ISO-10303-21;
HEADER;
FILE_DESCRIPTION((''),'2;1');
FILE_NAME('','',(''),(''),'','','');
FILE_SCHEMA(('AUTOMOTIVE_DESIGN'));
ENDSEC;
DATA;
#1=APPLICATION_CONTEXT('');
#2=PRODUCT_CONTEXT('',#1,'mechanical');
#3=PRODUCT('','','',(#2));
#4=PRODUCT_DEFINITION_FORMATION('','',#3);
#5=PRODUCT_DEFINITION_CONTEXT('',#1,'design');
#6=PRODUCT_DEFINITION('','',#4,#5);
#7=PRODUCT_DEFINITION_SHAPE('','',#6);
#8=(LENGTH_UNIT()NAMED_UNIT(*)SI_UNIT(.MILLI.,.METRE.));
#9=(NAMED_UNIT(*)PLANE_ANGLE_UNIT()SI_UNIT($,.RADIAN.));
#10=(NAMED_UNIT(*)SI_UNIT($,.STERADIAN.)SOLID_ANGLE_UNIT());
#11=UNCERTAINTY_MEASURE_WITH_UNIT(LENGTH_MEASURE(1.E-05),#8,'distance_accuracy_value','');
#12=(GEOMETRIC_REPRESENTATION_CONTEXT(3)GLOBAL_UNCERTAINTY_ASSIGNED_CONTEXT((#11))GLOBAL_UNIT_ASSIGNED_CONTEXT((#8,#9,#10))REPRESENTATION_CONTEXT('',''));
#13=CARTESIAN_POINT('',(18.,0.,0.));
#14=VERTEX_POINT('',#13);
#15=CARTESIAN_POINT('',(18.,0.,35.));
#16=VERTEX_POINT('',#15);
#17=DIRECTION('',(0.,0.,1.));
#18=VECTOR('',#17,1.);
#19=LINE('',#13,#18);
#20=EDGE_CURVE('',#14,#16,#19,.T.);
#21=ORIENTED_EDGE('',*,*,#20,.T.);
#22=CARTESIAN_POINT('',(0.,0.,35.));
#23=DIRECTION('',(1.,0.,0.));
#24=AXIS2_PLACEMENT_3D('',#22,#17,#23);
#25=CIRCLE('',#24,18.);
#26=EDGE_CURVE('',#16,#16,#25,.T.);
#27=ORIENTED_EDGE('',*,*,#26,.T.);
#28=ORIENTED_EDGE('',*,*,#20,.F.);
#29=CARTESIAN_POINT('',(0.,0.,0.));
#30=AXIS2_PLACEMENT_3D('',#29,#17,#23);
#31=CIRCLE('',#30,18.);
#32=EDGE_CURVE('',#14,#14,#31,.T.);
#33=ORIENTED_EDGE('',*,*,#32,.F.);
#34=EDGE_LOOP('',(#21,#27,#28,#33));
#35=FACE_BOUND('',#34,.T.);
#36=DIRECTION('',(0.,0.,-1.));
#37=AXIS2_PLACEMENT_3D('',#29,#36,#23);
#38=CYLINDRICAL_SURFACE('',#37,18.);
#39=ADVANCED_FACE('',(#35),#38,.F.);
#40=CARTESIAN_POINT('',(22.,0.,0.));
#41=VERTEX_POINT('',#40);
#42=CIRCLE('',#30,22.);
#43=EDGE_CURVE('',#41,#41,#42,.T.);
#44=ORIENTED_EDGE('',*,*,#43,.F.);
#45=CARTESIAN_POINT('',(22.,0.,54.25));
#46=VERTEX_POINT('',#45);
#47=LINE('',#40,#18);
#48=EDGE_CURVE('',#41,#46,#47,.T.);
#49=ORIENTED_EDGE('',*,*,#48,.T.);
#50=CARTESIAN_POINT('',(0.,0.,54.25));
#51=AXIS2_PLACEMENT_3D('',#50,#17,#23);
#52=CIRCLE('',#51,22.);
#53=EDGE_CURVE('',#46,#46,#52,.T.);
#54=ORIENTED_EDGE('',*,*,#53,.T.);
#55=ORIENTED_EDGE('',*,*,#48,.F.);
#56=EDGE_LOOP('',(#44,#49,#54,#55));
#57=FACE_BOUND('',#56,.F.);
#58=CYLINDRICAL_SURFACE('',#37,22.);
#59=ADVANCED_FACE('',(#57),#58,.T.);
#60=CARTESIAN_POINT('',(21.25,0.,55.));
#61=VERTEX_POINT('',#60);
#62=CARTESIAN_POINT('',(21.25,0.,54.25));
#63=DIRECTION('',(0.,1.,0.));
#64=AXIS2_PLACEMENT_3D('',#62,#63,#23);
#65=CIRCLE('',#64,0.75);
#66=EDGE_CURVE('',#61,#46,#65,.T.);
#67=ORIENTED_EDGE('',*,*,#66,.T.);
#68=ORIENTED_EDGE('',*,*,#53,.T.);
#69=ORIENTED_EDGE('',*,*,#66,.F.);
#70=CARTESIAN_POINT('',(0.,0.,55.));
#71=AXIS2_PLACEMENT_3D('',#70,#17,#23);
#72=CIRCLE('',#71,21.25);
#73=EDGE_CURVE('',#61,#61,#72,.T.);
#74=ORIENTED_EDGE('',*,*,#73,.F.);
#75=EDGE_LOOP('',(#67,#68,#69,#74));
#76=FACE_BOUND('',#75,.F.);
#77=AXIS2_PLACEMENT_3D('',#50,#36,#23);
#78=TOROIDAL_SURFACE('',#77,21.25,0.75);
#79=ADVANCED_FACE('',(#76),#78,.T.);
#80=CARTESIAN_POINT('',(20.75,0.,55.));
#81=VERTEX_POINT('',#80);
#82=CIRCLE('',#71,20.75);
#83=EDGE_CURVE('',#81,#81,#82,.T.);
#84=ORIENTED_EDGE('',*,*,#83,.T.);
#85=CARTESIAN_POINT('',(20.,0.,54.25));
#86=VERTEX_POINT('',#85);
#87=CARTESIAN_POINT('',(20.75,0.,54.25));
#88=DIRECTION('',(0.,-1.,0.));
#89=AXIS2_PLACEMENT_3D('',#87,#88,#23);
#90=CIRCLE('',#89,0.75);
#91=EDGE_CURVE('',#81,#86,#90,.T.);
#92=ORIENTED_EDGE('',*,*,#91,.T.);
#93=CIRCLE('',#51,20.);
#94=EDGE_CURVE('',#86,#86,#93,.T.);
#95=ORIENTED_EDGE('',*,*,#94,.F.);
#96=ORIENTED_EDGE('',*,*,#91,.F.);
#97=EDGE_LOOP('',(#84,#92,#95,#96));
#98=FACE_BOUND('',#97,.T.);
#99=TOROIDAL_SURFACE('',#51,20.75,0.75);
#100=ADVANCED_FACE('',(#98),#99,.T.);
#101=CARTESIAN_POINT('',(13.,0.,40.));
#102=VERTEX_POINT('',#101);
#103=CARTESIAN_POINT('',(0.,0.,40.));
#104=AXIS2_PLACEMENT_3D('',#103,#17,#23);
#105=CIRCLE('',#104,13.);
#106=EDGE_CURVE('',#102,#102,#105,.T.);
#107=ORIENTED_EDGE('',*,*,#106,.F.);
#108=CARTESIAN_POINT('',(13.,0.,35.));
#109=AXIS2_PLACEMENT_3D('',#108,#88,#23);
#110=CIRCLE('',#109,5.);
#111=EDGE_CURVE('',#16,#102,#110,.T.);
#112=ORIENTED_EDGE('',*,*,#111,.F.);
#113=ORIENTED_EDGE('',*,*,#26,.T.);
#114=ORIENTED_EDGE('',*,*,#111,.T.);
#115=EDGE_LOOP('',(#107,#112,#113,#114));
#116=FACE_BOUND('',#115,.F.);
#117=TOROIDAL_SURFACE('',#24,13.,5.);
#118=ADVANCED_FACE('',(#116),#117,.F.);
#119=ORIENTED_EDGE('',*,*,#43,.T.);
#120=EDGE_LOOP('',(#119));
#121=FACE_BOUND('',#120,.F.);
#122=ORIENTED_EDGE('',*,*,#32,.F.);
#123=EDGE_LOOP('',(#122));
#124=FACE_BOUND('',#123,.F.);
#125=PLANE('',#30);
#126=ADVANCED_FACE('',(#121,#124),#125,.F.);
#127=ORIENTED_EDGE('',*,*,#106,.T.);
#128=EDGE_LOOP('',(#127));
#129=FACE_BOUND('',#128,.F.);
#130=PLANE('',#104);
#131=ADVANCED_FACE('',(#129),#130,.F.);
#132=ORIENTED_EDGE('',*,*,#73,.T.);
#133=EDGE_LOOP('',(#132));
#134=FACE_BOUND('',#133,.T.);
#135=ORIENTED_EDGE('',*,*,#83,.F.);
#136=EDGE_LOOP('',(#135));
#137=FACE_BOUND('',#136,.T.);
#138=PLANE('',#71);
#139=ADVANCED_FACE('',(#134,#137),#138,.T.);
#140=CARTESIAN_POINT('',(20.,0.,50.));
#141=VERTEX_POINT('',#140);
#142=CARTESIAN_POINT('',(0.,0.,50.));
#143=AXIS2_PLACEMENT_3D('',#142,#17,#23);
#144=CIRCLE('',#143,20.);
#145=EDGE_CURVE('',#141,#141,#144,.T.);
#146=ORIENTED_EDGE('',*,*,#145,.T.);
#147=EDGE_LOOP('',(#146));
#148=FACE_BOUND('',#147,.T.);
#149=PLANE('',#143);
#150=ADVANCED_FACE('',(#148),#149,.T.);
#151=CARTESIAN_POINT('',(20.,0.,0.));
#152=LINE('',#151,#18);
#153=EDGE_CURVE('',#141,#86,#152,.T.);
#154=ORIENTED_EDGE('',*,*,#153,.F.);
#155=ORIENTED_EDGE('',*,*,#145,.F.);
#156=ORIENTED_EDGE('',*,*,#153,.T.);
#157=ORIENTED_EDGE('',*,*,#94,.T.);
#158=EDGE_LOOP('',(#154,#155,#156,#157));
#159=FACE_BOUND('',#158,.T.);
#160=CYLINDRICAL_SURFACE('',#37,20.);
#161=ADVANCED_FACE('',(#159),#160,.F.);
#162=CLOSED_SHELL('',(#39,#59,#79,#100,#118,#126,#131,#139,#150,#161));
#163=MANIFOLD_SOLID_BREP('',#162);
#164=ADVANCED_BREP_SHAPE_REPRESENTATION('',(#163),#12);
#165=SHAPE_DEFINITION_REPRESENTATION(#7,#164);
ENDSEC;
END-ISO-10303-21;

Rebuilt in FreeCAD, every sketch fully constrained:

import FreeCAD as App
import Part
import Sketcher


def edges_at(feature, points):
    """Names of the edges that pass closest to the given points."""
    edges = feature.Shape.Edges
    near = lambda p: min(range(len(edges)), key=lambda i: edges[i].distToShape(Part.Vertex(*p))[0])
    return sorted({f"Edge{near(p) + 1}" for p in points})

doc = App.newDocument("Part")
body = doc.addObject("PartDesign::Body", "Body")

# Sketch on XY plane
sketch1 = body.newObject("Sketcher::SketchObject", "Sketch")
sketch1.AttachmentSupport = (doc.getObject("XY_Plane"), [""])
sketch1.MapMode = "FlatFace"
sketch1.addGeometry(Part.Circle(App.Vector(0, 0, 0), App.Vector(0, 0, 1), 20), False)
sketch1.addConstraint([
    Sketcher.Constraint("Coincident", 0, 3, -1, 1),
    Sketcher.Constraint("Diameter", 0, 40.0),
])
pad1 = body.newObject("PartDesign::Pad", "Pad")
pad1.Profile = sketch1
pad1.Length = 50

# Sketch on XY plane
sketch2 = body.newObject("Sketcher::SketchObject", "Sketch001")
sketch2.AttachmentSupport = (doc.getObject("XY_Plane"), [""])
sketch2.MapMode = "FlatFace"
sketch2.addGeometry([
    Part.Circle(App.Vector(0, 0, 0), App.Vector(0, 0, 1), 22),
    Part.Circle(App.Vector(0, 0, 0), App.Vector(0, 0, 1), 20),
], False)
sketch2.addConstraint([
    Sketcher.Constraint("Coincident", 0, 3, -1, 1),
    Sketcher.Constraint("Coincident", 1, 3, -1, 1),
    Sketcher.Constraint("Diameter", 0, 44.0),
    Sketcher.Constraint("Diameter", 1, 40.0),
])
pad2 = body.newObject("PartDesign::Pad", "Pad001")
pad2.Profile = sketch2
pad2.Length = 55

# Sketch on XY plane
sketch3 = body.newObject("Sketcher::SketchObject", "Sketch002")
sketch3.AttachmentSupport = (doc.getObject("XY_Plane"), [""])
sketch3.MapMode = "FlatFace"
sketch3.addGeometry(Part.Circle(App.Vector(0, 0, 0), App.Vector(0, 0, 1), 18), False)
sketch3.addConstraint([
    Sketcher.Constraint("Coincident", 0, 3, -1, 1),
    Sketcher.Constraint("Diameter", 0, 36.0),
])
pocket1 = body.newObject("PartDesign::Pocket", "Pocket")
pocket1.Profile = sketch3
pocket1.Length = 40
pocket1.Reversed = True
doc.recompute()

fillet = body.newObject("PartDesign::Fillet", "Fillet")
fillet.Base = (pocket1, edges_at(pocket1, [(-20, 0, 55)]))
fillet.Radius = 0.75
doc.recompute()

fillet2 = body.newObject("PartDesign::Fillet", "Fillet001")
fillet2.Base = (fillet, edges_at(fillet, [(-22, 0, 55)]))
fillet2.Radius = 0.75
doc.recompute()

fillet3 = body.newObject("PartDesign::Fillet", "Fillet002")
fillet3.Base = (fillet2, edges_at(fillet2, [(-18, 0, 40)]))
fillet3.Radius = 5

doc.recompute()
